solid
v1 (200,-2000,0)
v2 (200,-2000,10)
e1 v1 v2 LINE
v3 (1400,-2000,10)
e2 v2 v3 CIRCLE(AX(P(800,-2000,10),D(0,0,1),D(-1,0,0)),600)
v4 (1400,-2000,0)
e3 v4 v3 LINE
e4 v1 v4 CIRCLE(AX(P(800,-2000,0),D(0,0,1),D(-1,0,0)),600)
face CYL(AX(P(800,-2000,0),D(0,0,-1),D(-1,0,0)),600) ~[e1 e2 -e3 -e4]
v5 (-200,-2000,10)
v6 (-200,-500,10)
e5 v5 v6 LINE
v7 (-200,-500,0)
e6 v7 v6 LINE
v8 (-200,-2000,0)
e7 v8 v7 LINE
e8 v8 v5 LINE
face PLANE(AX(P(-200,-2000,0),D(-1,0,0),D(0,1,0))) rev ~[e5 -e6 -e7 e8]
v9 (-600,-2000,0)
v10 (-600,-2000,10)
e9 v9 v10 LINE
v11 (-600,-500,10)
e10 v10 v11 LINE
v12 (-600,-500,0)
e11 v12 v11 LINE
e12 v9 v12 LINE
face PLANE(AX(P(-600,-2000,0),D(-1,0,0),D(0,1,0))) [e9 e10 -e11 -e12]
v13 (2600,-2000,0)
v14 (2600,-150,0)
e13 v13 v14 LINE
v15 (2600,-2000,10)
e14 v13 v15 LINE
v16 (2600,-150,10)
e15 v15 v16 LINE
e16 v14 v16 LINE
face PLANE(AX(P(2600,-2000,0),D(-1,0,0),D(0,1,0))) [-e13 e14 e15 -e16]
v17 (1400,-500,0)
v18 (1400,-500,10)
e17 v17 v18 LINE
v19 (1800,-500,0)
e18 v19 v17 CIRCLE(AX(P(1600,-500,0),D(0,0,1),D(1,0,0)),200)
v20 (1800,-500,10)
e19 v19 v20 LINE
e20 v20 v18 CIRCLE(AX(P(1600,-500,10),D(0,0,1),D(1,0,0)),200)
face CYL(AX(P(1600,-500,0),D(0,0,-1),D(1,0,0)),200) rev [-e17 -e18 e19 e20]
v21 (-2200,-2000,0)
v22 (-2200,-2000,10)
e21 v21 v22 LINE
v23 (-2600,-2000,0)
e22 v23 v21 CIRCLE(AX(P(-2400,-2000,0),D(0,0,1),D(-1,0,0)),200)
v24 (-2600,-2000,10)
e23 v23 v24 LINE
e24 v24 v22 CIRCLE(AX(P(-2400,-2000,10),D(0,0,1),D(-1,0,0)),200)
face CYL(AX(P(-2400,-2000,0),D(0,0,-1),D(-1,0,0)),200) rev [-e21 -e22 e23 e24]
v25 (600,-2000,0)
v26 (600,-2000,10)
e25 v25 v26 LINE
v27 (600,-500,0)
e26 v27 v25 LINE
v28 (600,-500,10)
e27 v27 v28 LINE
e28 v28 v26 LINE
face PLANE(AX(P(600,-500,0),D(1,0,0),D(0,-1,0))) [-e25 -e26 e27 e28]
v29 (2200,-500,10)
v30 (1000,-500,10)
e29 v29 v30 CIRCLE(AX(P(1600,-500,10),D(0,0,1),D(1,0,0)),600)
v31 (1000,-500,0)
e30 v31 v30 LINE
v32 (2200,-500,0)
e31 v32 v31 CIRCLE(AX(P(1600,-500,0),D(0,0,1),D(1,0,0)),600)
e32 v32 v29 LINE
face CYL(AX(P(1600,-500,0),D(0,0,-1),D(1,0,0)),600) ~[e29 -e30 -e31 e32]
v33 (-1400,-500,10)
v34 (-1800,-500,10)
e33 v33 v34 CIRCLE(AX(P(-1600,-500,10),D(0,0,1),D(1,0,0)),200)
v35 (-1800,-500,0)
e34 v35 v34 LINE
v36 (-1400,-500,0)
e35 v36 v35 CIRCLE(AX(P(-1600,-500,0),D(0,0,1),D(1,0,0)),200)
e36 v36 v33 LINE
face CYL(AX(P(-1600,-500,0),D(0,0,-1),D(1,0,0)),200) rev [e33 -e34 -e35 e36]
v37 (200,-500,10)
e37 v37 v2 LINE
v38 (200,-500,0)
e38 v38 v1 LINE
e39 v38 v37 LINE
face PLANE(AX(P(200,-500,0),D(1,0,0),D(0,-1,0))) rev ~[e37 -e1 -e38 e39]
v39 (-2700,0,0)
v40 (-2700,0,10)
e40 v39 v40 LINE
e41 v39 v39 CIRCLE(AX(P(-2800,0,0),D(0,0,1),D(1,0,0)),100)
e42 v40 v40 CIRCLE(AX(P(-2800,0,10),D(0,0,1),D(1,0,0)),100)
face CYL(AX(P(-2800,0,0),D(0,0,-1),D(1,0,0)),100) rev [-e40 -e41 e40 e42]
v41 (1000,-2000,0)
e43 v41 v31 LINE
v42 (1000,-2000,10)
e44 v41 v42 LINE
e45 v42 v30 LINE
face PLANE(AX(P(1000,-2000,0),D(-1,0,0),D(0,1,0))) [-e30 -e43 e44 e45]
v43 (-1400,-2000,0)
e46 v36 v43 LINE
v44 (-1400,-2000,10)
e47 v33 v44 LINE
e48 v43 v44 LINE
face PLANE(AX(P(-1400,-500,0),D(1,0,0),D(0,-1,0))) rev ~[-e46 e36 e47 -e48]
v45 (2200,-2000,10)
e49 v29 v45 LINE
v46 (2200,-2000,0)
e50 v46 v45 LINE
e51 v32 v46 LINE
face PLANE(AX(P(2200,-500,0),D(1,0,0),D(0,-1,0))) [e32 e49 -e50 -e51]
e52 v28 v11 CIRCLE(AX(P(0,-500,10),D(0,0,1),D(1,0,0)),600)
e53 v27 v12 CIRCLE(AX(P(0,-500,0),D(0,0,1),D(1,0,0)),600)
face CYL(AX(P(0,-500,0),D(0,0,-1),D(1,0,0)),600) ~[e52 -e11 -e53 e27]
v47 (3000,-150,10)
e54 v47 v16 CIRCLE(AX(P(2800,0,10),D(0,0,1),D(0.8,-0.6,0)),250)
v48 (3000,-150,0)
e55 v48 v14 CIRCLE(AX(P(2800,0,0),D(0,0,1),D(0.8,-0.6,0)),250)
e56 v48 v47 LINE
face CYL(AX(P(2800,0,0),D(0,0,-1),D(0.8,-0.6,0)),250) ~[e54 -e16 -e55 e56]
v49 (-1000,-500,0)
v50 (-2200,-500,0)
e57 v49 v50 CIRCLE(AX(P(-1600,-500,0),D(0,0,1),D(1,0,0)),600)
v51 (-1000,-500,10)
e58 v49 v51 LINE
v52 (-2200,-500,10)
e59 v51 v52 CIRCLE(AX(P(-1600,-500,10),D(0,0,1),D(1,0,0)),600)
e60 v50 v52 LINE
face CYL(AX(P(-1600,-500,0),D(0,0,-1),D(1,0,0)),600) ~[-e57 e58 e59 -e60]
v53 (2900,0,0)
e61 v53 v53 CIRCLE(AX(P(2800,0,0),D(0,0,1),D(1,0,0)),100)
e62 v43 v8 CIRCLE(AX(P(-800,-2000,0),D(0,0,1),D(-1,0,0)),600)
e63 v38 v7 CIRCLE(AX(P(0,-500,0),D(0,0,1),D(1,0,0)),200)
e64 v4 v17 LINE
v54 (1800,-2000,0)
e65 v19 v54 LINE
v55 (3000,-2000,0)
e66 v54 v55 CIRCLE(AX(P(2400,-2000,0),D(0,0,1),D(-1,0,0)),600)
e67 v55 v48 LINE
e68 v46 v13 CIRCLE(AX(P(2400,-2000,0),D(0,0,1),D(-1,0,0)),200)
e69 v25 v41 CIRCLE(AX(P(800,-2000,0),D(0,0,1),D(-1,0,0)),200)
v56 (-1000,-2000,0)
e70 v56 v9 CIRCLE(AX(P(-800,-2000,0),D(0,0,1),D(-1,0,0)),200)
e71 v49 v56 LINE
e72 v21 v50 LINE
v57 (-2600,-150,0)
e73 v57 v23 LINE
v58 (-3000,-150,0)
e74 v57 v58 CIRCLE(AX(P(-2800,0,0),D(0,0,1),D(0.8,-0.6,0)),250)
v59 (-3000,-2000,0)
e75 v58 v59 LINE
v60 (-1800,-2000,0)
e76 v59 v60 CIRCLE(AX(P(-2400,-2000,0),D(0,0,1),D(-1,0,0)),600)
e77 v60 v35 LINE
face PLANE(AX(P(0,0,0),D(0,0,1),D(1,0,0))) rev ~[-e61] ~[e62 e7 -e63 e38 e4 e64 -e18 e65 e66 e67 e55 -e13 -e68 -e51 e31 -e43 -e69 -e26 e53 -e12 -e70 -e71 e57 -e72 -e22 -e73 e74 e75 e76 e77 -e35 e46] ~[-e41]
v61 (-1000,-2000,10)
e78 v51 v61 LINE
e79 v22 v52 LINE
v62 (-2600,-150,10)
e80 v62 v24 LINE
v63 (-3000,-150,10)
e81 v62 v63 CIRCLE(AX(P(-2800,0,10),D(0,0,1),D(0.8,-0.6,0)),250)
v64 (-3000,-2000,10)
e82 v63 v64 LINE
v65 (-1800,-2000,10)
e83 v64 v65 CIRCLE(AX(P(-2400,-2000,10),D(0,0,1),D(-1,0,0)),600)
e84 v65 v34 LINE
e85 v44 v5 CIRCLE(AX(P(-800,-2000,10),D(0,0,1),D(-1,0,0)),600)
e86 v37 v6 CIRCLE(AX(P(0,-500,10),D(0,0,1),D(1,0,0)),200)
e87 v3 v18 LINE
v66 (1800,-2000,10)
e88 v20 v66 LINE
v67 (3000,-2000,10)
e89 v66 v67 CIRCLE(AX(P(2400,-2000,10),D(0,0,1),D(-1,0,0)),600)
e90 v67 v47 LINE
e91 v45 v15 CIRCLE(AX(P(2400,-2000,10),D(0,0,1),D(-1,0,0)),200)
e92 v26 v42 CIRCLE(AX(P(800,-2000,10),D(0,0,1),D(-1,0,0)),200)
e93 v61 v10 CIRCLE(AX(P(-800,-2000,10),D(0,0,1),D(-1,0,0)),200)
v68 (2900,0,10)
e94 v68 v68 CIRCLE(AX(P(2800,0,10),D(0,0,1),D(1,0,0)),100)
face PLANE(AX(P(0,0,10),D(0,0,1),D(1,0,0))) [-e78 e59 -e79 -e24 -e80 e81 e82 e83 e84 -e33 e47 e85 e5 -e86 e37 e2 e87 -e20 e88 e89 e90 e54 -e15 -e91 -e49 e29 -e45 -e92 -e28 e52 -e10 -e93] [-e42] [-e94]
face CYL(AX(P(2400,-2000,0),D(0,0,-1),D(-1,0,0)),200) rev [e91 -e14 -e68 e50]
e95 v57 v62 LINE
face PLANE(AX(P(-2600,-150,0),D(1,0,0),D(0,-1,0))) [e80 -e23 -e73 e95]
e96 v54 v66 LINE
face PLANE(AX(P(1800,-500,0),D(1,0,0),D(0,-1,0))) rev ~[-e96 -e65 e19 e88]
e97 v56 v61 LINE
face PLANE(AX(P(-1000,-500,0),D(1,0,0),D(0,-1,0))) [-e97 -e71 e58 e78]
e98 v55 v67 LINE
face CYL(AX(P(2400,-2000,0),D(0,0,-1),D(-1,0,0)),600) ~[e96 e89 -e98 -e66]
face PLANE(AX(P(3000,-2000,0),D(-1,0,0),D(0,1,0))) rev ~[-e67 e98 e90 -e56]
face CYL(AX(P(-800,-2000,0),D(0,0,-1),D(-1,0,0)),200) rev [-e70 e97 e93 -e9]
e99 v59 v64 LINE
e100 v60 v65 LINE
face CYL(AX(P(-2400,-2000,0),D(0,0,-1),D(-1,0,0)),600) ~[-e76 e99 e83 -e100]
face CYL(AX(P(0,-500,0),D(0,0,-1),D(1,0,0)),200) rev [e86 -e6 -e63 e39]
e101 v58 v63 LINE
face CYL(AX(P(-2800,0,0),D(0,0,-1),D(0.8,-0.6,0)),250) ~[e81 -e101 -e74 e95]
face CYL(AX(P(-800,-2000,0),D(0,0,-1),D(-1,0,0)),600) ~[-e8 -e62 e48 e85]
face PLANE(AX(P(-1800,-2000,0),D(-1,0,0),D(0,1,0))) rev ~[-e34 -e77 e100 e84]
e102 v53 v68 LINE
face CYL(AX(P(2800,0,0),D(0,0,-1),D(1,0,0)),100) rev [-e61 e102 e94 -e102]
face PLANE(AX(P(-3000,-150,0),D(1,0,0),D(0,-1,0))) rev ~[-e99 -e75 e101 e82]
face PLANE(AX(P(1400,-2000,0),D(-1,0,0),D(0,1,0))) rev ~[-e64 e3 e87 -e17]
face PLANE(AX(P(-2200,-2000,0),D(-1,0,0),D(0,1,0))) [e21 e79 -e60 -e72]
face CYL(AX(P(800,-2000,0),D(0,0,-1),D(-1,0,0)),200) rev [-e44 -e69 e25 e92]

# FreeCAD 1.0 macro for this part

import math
import FreeCAD as App
import Part
import Sketcher

V = App.Vector
Q = App.Units.Quantity

doc = App.newDocument("Part")
body = doc.addObject("PartDesign::Body", "Body")

sketch1 = doc.addObject("Sketcher::SketchObject", "Sketch")
body.addObject(sketch1)
sketch1.AttachmentSupport = (doc.XY_Plane, [""])
sketch1.MapMode = "FlatFace"
sketch1.addGeometry([
    Part.ArcOfCircle(Part.Circle(V(-2800, 0, 0), V(0, 0, 1), 250), math.radians(-37), math.radians(217)),
    Part.LineSegment(V(-3000, -150, 0), V(-3000, -2000, 0)),
    Part.ArcOfCircle(Part.Circle(V(-2400, -2000, 0), V(0, 0, 1), 600), math.radians(180), math.radians(360)),
    Part.LineSegment(V(-1800, -2000, 0), V(-1800, -500, 0)),
    Part.ArcOfCircle(Part.Circle(V(-1600, -500, 0), V(0, 0, 1), 200), math.radians(0), math.radians(180)),
    Part.LineSegment(V(-1400, -500, 0), V(-1400, -2000, 0)),
    Part.ArcOfCircle(Part.Circle(V(-800, -2000, 0), V(0, 0, 1), 600), math.radians(180), math.radians(360)),
    Part.LineSegment(V(-200, -2000, 0), V(-200, -500, 0)),
    Part.ArcOfCircle(Part.Circle(V(0, -500, 0), V(0, 0, 1), 200), math.radians(0), math.radians(180)),
    Part.LineSegment(V(200, -500, 0), V(200, -2000, 0)),
    Part.ArcOfCircle(Part.Circle(V(800, -2000, 0), V(0, 0, 1), 600), math.radians(180), math.radians(360)),
    Part.LineSegment(V(1400, -2000, 0), V(1400, -500, 0)),
    Part.ArcOfCircle(Part.Circle(V(1600, -500, 0), V(0, 0, 1), 200), math.radians(0), math.radians(180)),
    Part.LineSegment(V(1800, -500, 0), V(1800, -2000, 0)),
    Part.ArcOfCircle(Part.Circle(V(2400, -2000, 0), V(0, 0, 1), 600), math.radians(180), math.radians(360)),
    Part.LineSegment(V(3000, -2000, 0), V(3000, -150, 0)),
    Part.ArcOfCircle(Part.Circle(V(2800, 0, 0), V(0, 0, 1), 250), math.radians(-37), math.radians(217)),
    Part.LineSegment(V(2600, -150, 0), V(2600, -2000, 0)),
    Part.ArcOfCircle(Part.Circle(V(2400, -2000, 0), V(0, 0, 1), 200), math.radians(180), math.radians(360)),
    Part.LineSegment(V(2200, -2000, 0), V(2200, -500, 0)),
    Part.ArcOfCircle(Part.Circle(V(1600, -500, 0), V(0, 0, 1), 600), math.radians(0), math.radians(180)),
    Part.LineSegment(V(1000, -500, 0), V(1000, -2000, 0)),
    Part.ArcOfCircle(Part.Circle(V(800, -2000, 0), V(0, 0, 1), 200), math.radians(180), math.radians(360)),
    Part.LineSegment(V(600, -2000, 0), V(600, -500, 0)),
    Part.ArcOfCircle(Part.Circle(V(0, -500, 0), V(0, 0, 1), 600), math.radians(0), math.radians(180)),
    Part.LineSegment(V(-600, -500, 0), V(-600, -2000, 0)),
    Part.ArcOfCircle(Part.Circle(V(-800, -2000, 0), V(0, 0, 1), 200), math.radians(180), math.radians(360)),
    Part.LineSegment(V(-1000, -2000, 0), V(-1000, -500, 0)),
    Part.ArcOfCircle(Part.Circle(V(-1600, -500, 0), V(0, 0, 1), 600), math.radians(0), math.radians(180)),
    Part.LineSegment(V(-2200, -500, 0), V(-2200, -2000, 0)),
    Part.ArcOfCircle(Part.Circle(V(-2400, -2000, 0), V(0, 0, 1), 200), math.radians(180), math.radians(360)),
    Part.LineSegment(V(-2600, -2000, 0), V(-2600, -150, 0)),
    Part.Circle(V(-2800, 0, 0), V(0, 0, 1), 100),
    Part.Circle(V(2800, 0, 0), V(0, 0, 1), 100),
], False)
sketch1.addConstraint([
    Sketcher.Constraint("Coincident", 0, 2, 1, 1),
    Sketcher.Constraint("Tangent", 1, 2, 2, 1),
    Sketcher.Constraint("Tangent", 2, 2, 3, 1),
    Sketcher.Constraint("Tangent", 3, 2, 4, 2),
    Sketcher.Constraint("Tangent", 4, 1, 5, 1),
    Sketcher.Constraint("Tangent", 5, 2, 6, 1),
    Sketcher.Constraint("Tangent", 6, 2, 7, 1),
    Sketcher.Constraint("Tangent", 7, 2, 8, 2),
    Sketcher.Constraint("Tangent", 8, 1, 9, 1),
    Sketcher.Constraint("Tangent", 9, 2, 10, 1),
    Sketcher.Constraint("Tangent", 10, 2, 11, 1),
    Sketcher.Constraint("Tangent", 11, 2, 12, 2),
    Sketcher.Constraint("Tangent", 12, 1, 13, 1),
    Sketcher.Constraint("Tangent", 13, 2, 14, 1),
    Sketcher.Constraint("Tangent", 14, 2, 15, 1),
    Sketcher.Constraint("Coincident", 15, 2, 16, 1),
    Sketcher.Constraint("Coincident", 16, 2, 17, 1),
    Sketcher.Constraint("Tangent", 17, 2, 18, 2),
    Sketcher.Constraint("Tangent", 18, 1, 19, 1),
    Sketcher.Constraint("Tangent", 19, 2, 20, 1),
    Sketcher.Constraint("Tangent", 20, 2, 21, 1),
    Sketcher.Constraint("Tangent", 21, 2, 22, 2),
    Sketcher.Constraint("Tangent", 22, 1, 23, 1),
    Sketcher.Constraint("Tangent", 23, 2, 24, 1),
    Sketcher.Constraint("Tangent", 24, 2, 25, 1),
    Sketcher.Constraint("Tangent", 25, 2, 26, 2),
    Sketcher.Constraint("Tangent", 26, 1, 27, 1),
    Sketcher.Constraint("Tangent", 27, 2, 28, 1),
    Sketcher.Constraint("Tangent", 28, 2, 29, 1),
    Sketcher.Constraint("Tangent", 29, 2, 30, 2),
    Sketcher.Constraint("Tangent", 30, 1, 31, 1),
    Sketcher.Constraint("Coincident", 31, 2, 0, 1),
    Sketcher.Constraint("Vertical", 1),
    Sketcher.Constraint("Vertical", 3),
    Sketcher.Constraint("Vertical", 5),
    Sketcher.Constraint("Vertical", 7),
    Sketcher.Constraint("Vertical", 9),
    Sketcher.Constraint("Vertical", 11),
    Sketcher.Constraint("Vertical", 13),
    Sketcher.Constraint("Vertical", 15),
    Sketcher.Constraint("Vertical", 17),
    Sketcher.Constraint("Vertical", 19),
    Sketcher.Constraint("Vertical", 21),
    Sketcher.Constraint("Vertical", 23),
    Sketcher.Constraint("Vertical", 25),
    Sketcher.Constraint("Vertical", 27),
    Sketcher.Constraint("Vertical", 29),
    Sketcher.Constraint("Vertical", 31),
    Sketcher.Constraint("Coincident", 18, 3, 14, 3),
    Sketcher.Constraint("Coincident", 20, 3, 12, 3),
    Sketcher.Constraint("Coincident", 22, 3, 10, 3),
    Sketcher.Constraint("Coincident", 24, 3, 8, 3),
    Sketcher.Constraint("Coincident", 26, 3, 6, 3),
    Sketcher.Constraint("Coincident", 28, 3, 4, 3),
    Sketcher.Constraint("Coincident", 30, 3, 2, 3),
    Sketcher.Constraint("Coincident", 32, 3, 0, 3),
    Sketcher.Constraint("Coincident", 33, 3, 16, 3),
    Sketcher.Constraint("Equal", 2, 6),
    Sketcher.Constraint("Equal", 4, 8),
    Sketcher.Constraint("Equal", 6, 10),
    Sketcher.Constraint("Equal", 8, 12),
    Sketcher.Constraint("Equal", 10, 14),
    Sketcher.Constraint("Equal", 0, 16),
    Sketcher.Constraint("Equal", 12, 18),
    Sketcher.Constraint("Equal", 32, 33),
    Sketcher.Constraint("Symmetric", 0, 3, 16, 3, -1, 1),
    Sketcher.Constraint("Symmetric", 6, 3, 10, 3, -2),
    Sketcher.Constraint("PointOnObject", 0, 3, -1),
    Sketcher.Constraint("Horizontal", 2, 3, 6, 3),
    Sketcher.Constraint("Horizontal", 4, 3, 8, 3),
    Sketcher.Constraint("Horizontal", 8, 3, 12, 3),
    Sketcher.Constraint("Horizontal", 10, 3, 14, 3),
    Sketcher.Constraint("Horizontal", 15, 2, 16, 2),
    Sketcher.Constraint("Diameter", 32, Q("200 mm")),
    Sketcher.Constraint("Radius", 0, Q("250 mm")),
    Sketcher.Constraint("Radius", 4, Q("200 mm")),
    Sketcher.Constraint("DistanceY", 3, 1, 3, 2, Q("1500 mm")),
    Sketcher.Constraint("DistanceY", 2, 3, -1, 1, Q("2000 mm")),
    Sketcher.Constraint("Radius", 2, Q("600 mm")),
])
pad1 = doc.addObject("PartDesign::Pad", "Pad")
body.addObject(pad1)
pad1.Profile = sketch1
pad1.Length = 10

doc.recompute()
